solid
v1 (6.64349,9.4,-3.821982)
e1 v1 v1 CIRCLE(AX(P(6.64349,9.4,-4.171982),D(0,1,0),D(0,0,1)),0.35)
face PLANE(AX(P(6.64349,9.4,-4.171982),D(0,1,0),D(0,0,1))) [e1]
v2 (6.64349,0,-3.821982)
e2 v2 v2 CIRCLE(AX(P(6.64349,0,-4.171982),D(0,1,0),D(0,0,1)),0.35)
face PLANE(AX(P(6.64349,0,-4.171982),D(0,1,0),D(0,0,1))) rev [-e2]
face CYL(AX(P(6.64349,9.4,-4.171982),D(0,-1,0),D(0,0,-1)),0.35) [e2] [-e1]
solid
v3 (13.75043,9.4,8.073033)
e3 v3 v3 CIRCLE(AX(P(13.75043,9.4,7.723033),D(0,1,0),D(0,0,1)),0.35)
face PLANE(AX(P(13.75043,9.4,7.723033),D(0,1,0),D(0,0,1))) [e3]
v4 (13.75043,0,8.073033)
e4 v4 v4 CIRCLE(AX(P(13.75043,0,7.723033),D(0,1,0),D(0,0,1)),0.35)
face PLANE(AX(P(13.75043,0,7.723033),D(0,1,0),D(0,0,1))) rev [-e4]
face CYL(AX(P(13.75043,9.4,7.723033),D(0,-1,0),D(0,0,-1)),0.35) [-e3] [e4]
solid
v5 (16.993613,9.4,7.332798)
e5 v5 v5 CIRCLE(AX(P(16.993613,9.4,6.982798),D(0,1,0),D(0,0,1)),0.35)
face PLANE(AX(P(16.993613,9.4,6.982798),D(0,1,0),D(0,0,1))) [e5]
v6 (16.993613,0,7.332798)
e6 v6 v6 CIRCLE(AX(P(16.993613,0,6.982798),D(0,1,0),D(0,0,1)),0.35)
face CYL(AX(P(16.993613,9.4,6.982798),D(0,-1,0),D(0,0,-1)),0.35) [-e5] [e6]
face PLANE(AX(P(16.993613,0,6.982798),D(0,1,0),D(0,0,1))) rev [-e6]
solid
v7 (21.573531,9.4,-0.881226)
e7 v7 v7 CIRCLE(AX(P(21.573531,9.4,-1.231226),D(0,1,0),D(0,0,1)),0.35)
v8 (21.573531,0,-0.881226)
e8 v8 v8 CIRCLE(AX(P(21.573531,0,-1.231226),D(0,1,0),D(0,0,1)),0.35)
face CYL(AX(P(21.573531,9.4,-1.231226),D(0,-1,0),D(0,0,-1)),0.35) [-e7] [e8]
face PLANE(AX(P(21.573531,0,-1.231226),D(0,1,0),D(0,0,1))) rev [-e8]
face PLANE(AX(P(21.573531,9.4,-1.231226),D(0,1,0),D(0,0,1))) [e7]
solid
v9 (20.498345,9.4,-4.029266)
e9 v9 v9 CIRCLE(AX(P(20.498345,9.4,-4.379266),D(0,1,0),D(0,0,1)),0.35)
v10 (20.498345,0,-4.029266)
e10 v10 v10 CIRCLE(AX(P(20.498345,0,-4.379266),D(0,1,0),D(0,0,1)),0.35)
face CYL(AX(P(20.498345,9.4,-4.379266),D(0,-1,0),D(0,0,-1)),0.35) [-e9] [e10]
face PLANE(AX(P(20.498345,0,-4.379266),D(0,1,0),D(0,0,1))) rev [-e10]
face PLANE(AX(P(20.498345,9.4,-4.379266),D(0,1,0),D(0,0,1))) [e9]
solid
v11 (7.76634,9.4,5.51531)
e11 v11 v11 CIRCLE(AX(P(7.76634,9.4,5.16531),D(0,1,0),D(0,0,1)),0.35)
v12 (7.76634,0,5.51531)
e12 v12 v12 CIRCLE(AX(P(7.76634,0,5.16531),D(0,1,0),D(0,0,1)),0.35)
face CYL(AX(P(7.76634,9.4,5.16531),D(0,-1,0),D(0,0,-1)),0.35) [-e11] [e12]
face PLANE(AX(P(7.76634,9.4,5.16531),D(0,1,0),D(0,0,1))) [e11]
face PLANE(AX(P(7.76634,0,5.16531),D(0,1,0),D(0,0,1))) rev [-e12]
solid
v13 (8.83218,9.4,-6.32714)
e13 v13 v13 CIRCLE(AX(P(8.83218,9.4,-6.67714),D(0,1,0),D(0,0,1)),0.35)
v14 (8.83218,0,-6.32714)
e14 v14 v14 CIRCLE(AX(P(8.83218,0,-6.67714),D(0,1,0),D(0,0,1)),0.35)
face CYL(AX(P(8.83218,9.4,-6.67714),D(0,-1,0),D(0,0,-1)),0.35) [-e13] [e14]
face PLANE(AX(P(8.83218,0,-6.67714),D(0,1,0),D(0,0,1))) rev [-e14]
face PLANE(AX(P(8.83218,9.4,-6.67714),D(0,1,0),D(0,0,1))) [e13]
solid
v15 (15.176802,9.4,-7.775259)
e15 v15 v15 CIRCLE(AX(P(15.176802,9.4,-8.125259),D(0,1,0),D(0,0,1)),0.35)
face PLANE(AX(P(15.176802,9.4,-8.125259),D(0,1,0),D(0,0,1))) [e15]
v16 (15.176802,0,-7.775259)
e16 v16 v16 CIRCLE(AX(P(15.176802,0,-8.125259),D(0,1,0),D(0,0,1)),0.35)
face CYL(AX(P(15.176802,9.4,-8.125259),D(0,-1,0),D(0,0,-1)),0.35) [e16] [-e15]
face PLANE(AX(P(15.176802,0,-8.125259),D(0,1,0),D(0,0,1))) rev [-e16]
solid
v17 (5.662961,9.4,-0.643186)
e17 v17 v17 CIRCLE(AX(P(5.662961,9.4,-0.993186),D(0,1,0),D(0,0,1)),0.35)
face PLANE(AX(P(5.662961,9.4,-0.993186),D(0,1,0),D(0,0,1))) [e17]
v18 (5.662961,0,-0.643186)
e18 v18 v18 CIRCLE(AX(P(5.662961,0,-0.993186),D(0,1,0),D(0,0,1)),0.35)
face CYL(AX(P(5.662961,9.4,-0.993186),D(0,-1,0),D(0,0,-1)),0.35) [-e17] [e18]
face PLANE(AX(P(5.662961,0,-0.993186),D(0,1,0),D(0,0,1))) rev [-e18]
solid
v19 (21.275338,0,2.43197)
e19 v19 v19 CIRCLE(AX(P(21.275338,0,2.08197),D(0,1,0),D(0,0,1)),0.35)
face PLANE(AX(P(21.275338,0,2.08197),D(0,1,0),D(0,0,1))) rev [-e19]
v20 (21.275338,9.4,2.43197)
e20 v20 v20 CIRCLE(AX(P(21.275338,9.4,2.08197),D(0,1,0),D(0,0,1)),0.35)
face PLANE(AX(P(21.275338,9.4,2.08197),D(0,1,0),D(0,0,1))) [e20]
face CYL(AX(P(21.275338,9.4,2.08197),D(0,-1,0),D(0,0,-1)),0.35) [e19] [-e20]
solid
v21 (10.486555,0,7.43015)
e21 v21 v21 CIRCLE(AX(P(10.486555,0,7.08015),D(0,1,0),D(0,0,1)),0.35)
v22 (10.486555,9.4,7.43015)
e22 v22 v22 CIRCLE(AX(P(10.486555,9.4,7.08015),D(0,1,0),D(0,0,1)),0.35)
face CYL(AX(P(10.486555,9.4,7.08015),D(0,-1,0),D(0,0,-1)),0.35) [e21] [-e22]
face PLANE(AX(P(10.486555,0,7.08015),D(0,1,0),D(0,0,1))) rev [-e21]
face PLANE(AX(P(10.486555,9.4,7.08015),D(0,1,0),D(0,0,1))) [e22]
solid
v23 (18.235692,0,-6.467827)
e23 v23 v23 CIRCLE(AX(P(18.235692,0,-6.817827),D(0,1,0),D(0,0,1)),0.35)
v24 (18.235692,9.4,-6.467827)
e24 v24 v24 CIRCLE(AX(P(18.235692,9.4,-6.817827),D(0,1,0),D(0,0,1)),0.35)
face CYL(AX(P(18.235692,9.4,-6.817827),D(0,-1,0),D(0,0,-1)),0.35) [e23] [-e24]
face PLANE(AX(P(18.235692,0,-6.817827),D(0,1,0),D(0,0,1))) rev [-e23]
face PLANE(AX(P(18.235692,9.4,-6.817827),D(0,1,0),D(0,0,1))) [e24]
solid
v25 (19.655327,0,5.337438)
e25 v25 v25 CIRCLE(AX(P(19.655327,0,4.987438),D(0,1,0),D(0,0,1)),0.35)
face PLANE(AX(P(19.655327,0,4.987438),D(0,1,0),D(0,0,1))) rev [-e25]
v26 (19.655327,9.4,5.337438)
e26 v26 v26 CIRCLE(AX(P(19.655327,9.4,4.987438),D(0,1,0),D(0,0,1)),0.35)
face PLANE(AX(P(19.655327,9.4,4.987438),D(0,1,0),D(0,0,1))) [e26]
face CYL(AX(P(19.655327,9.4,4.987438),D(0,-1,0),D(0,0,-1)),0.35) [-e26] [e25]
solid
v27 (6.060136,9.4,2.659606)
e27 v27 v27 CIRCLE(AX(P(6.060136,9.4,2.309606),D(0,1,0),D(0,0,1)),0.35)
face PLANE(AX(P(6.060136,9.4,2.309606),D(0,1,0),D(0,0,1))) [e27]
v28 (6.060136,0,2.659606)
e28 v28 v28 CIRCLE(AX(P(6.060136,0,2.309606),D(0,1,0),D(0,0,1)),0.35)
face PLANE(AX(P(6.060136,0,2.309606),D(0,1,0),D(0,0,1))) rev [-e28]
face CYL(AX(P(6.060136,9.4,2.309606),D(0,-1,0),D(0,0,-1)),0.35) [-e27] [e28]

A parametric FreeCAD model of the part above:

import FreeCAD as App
import Part
import Sketcher

doc = App.newDocument("Part")
body = doc.addObject("PartDesign::Body", "Body")

sketch1 = body.newObject("Sketcher::SketchObject", "Sketch")
sketch1.AttachmentSupport = (doc.getObject("XZ_Plane"), [""])
sketch1.MapMode = "FlatFace"
sketch1.addGeometry(Part.Circle(App.Vector(15.18, -8.13, 0), App.Vector(0, 0, 1), 0.35), False)
sketch1.addConstraint(Sketcher.Constraint("Diameter", 0, 0.7))
sketch1.addConstraint(Sketcher.Constraint("DistanceY", 0, 3, -1, 1, 8.125259))
sketch1.addConstraint(Sketcher.Constraint("DistanceX", -1, 1, 0, 3, 15.176802))
pad1 = body.newObject("PartDesign::Pad", "Pad")
pad1.Profile = sketch1
pad1.Length = 9.4
pad1.Reversed = True
body2 = doc.addObject("PartDesign::Body", "Body001")

sketch2 = body2.newObject("Sketcher::SketchObject", "Sketch001")
sketch2.AttachmentSupport = (doc.getObject("XZ_Plane001"), [""])
sketch2.MapMode = "FlatFace"
sketch2.addGeometry(Part.Circle(App.Vector(18.24, -6.82, 0), App.Vector(0, 0, 1), 0.35), False)
sketch2.addConstraint(Sketcher.Constraint("Diameter", 0, 0.7))
sketch2.addConstraint(Sketcher.Constraint("DistanceX", -1, 1, 0, 3, 18.235692))
sketch2.addConstraint(Sketcher.Constraint("DistanceY", 0, 3, -1, 1, 6.817827))
pad2 = body2.newObject("PartDesign::Pad", "Pad001")
pad2.Profile = sketch2
pad2.Length = 9.4
pad2.Reversed = True
body3 = doc.addObject("PartDesign::Body", "Body002")

sketch3 = body3.newObject("Sketcher::SketchObject", "Sketch002")
sketch3.AttachmentSupport = (doc.getObject("XZ_Plane002"), [""])
sketch3.MapMode = "FlatFace"
sketch3.addGeometry(Part.Circle(App.Vector(20.5, -4.38, 0), App.Vector(0, 0, 1), 0.35), False)
sketch3.addConstraint(Sketcher.Constraint("Diameter", 0, 0.7))
sketch3.addConstraint(Sketcher.Constraint("DistanceX", -1, 1, 0, 3, 20.498345))
sketch3.addConstraint(Sketcher.Constraint("DistanceY", 0, 3, -1, 1, 4.379266))
pad3 = body3.newObject("PartDesign::Pad", "Pad002")
pad3.Profile = sketch3
pad3.Length = 9.4
pad3.Reversed = True
body4 = doc.addObject("PartDesign::Body", "Body003")

sketch4 = body4.newObject("Sketcher::SketchObject", "Sketch003")
sketch4.AttachmentSupport = (doc.getObject("XZ_Plane003"), [""])
sketch4.MapMode = "FlatFace"
sketch4.addGeometry(Part.Circle(App.Vector(21.57, -1.23, 0), App.Vector(0, 0, 1), 0.35), False)
sketch4.addConstraint(Sketcher.Constraint("Diameter", 0, 0.7))
sketch4.addConstraint(Sketcher.Constraint("DistanceX", -1, 1, 0, 3, 21.573531))
sketch4.addConstraint(Sketcher.Constraint("DistanceY", 0, 3, -1, 1, 1.231226))
pad4 = body4.newObject("PartDesign::Pad", "Pad003")
pad4.Profile = sketch4
pad4.Length = 9.4
pad4.Reversed = True
body5 = doc.addObject("PartDesign::Body", "Body004")

sketch5 = body5.newObject("Sketcher::SketchObject", "Sketch004")
sketch5.AttachmentSupport = (doc.getObject("XZ_Plane004"), [""])
sketch5.MapMode = "FlatFace"
sketch5.addGeometry(Part.Circle(App.Vector(21.28, 2.08, 0), App.Vector(0, 0, 1), 0.35), False)
sketch5.addConstraint(Sketcher.Constraint("Diameter", 0, 0.7))
sketch5.addConstraint(Sketcher.Constraint("DistanceY", -1, 1, 0, 3, 2.08197))
sketch5.addConstraint(Sketcher.Constraint("DistanceX", -1, 1, 0, 3, 21.275338))
pad5 = body5.newObject("PartDesign::Pad", "Pad004")
pad5.Profile = sketch5
pad5.Length = 9.4
pad5.Reversed = True
body6 = doc.addObject("PartDesign::Body", "Body005")

sketch6 = body6.newObject("Sketcher::SketchObject", "Sketch005")
sketch6.AttachmentSupport = (doc.getObject("XZ_Plane005"), [""])
sketch6.MapMode = "FlatFace"
sketch6.addGeometry(Part.Circle(App.Vector(19.66, 4.99, 0), App.Vector(0, 0, 1), 0.35), False)
sketch6.addConstraint(Sketcher.Constraint("Diameter", 0, 0.7))
sketch6.addConstraint(Sketcher.Constraint("DistanceY", -1, 1, 0, 3, 4.987438))
sketch6.addConstraint(Sketcher.Constraint("DistanceX", -1, 1, 0, 3, 19.655327))
pad6 = body6.newObject("PartDesign::Pad", "Pad005")
pad6.Profile = sketch6
pad6.Length = 9.4
pad6.Reversed = True
body7 = doc.addObject("PartDesign::Body", "Body006")

sketch7 = body7.newObject("Sketcher::SketchObject", "Sketch006")
sketch7.AttachmentSupport = (doc.getObject("XZ_Plane006"), [""])
sketch7.MapMode = "FlatFace"
sketch7.addGeometry(Part.Circle(App.Vector(16.99, 6.98, 0), App.Vector(0, 0, 1), 0.35), False)
sketch7.addConstraint(Sketcher.Constraint("Diameter", 0, 0.7))
sketch7.addConstraint(Sketcher.Constraint("DistanceX", -1, 1, 0, 3, 16.993613))
sketch7.addConstraint(Sketcher.Constraint("DistanceY", -1, 1, 0, 3, 6.982798))
pad7 = body7.newObject("PartDesign::Pad", "Pad006")
pad7.Profile = sketch7
pad7.Length = 9.4
pad7.Reversed = True
body8 = doc.addObject("PartDesign::Body", "Body007")

sketch8 = body8.newObject("Sketcher::SketchObject", "Sketch007")
sketch8.AttachmentSupport = (doc.getObject("XZ_Plane007"), [""])
sketch8.MapMode = "FlatFace"
sketch8.addGeometry(Part.Circle(App.Vector(13.75, 7.72, 0), App.Vector(0, 0, 1), 0.35), False)
sketch8.addConstraint(Sketcher.Constraint("Diameter", 0, 0.7))
sketch8.addConstraint(Sketcher.Constraint("DistanceX", -1, 1, 0, 3, 13.75043))
sketch8.addConstraint(Sketcher.Constraint("DistanceY", -1, 1, 0, 3, 7.723033))
pad8 = body8.newObject("PartDesign::Pad", "Pad007")
pad8.Profile = sketch8
pad8.Length = 9.4
pad8.Reversed = True
body9 = doc.addObject("PartDesign::Body", "Body008")

sketch9 = body9.newObject("Sketcher::SketchObject", "Sketch008")
sketch9.AttachmentSupport = (doc.getObject("XZ_Plane008"), [""])
sketch9.MapMode = "FlatFace"
sketch9.addGeometry(Part.Circle(App.Vector(10.49, 7.08, 0), App.Vector(0, 0, 1), 0.35), False)
sketch9.addConstraint(Sketcher.Constraint("Diameter", 0, 0.7))
sketch9.addConstraint(Sketcher.Constraint("DistanceY", -1, 1, 0, 3, 7.08015))
sketch9.addConstraint(Sketcher.Constraint("DistanceX", -1, 1, 0, 3, 10.486555))
pad9 = body9.newObject("PartDesign::Pad", "Pad008")
pad9.Profile = sketch9
pad9.Length = 9.4
pad9.Reversed = True
body10 = doc.addObject("PartDesign::Body", "Body009")

sketch10 = body10.newObject("Sketcher::SketchObject", "Sketch009")
sketch10.AttachmentSupport = (doc.getObject("XZ_Plane009"), [""])
sketch10.MapMode = "FlatFace"
sketch10.addGeometry(Part.Circle(App.Vector(7.77, 5.17, 0), App.Vector(0, 0, 1), 0.35), False)
sketch10.addConstraint(Sketcher.Constraint("Diameter", 0, 0.7))
sketch10.addConstraint(Sketcher.Constraint("DistanceX", -1, 1, 0, 3, 7.76634))
sketch10.addConstraint(Sketcher.Constraint("DistanceY", -1, 1, 0, 3, 5.16531))
pad10 = body10.newObject("PartDesign::Pad", "Pad009")
pad10.Profile = sketch10
pad10.Length = 9.4
pad10.Reversed = True
body11 = doc.addObject("PartDesign::Body", "Body010")

sketch11 = body11.newObject("Sketcher::SketchObject", "Sketch010")
sketch11.AttachmentSupport = (doc.getObject("XZ_Plane010"), [""])
sketch11.MapMode = "FlatFace"
sketch11.addGeometry(Part.Circle(App.Vector(6.06, 2.31, 0), App.Vector(0, 0, 1), 0.35), False)
sketch11.addConstraint(Sketcher.Constraint("Diameter", 0, 0.7))
sketch11.addConstraint(Sketcher.Constraint("DistanceX", -1, 1, 0, 3, 6.060136))
sketch11.addConstraint(Sketcher.Constraint("DistanceY", -1, 1, 0, 3, 2.309606))
pad11 = body11.newObject("PartDesign::Pad", "Pad010")
pad11.Profile = sketch11
pad11.Length = 9.4
pad11.Reversed = True
body12 = doc.addObject("PartDesign::Body", "Body011")

sketch12 = body12.newObject("Sketcher::SketchObject", "Sketch011")
sketch12.AttachmentSupport = (doc.getObject("XZ_Plane011"), [""])
sketch12.MapMode = "FlatFace"
sketch12.addGeometry(Part.Circle(App.Vector(5.66, -0.99, 0), App.Vector(0, 0, 1), 0.35), False)
sketch12.addConstraint(Sketcher.Constraint("Diameter", 0, 0.7))
sketch12.addConstraint(Sketcher.Constraint("DistanceX", -1, 1, 0, 3, 5.662961))
sketch12.addConstraint(Sketcher.Constraint("DistanceY", 0, 3, -1, 1, 0.993186))
pad12 = body12.newObject("PartDesign::Pad", "Pad011")
pad12.Profile = sketch12
pad12.Length = 9.4
pad12.Reversed = True
body13 = doc.addObject("PartDesign::Body", "Body012")

sketch13 = body13.newObject("Sketcher::SketchObject", "Sketch012")
sketch13.AttachmentSupport = (doc.getObject("XZ_Plane012"), [""])
sketch13.MapMode = "FlatFace"
sketch13.addGeometry(Part.Circle(App.Vector(6.64, -4.17, 0), App.Vector(0, 0, 1), 0.35), False)
sketch13.addConstraint(Sketcher.Constraint("Diameter", 0, 0.7))
sketch13.addConstraint(Sketcher.Constraint("DistanceX", -1, 1, 0, 3, 6.64349))
sketch13.addConstraint(Sketcher.Constraint("DistanceY", 0, 3, -1, 1, 4.171982))
pad13 = body13.newObject("PartDesign::Pad", "Pad012")
pad13.Profile = sketch13
pad13.Length = 9.4
pad13.Reversed = True
body14 = doc.addObject("PartDesign::Body", "Body013")

sketch14 = body14.newObject("Sketcher::SketchObject", "Sketch013")
sketch14.AttachmentSupport = (doc.getObject("XZ_Plane013"), [""])
sketch14.MapMode = "FlatFace"
sketch14.addGeometry(Part.Circle(App.Vector(8.83, -6.68, 0), App.Vector(0, 0, 1), 0.35), False)
sketch14.addConstraint(Sketcher.Constraint("Diameter", 0, 0.7))
sketch14.addConstraint(Sketcher.Constraint("DistanceX", -1, 1, 0, 3, 8.83218))
sketch14.addConstraint(Sketcher.Constraint("DistanceY", 0, 3, -1, 1, 6.67714))
pad14 = body14.newObject("PartDesign::Pad", "Pad013")
pad14.Profile = sketch14
pad14.Length = 9.4
pad14.Reversed = True

doc.recompute()
